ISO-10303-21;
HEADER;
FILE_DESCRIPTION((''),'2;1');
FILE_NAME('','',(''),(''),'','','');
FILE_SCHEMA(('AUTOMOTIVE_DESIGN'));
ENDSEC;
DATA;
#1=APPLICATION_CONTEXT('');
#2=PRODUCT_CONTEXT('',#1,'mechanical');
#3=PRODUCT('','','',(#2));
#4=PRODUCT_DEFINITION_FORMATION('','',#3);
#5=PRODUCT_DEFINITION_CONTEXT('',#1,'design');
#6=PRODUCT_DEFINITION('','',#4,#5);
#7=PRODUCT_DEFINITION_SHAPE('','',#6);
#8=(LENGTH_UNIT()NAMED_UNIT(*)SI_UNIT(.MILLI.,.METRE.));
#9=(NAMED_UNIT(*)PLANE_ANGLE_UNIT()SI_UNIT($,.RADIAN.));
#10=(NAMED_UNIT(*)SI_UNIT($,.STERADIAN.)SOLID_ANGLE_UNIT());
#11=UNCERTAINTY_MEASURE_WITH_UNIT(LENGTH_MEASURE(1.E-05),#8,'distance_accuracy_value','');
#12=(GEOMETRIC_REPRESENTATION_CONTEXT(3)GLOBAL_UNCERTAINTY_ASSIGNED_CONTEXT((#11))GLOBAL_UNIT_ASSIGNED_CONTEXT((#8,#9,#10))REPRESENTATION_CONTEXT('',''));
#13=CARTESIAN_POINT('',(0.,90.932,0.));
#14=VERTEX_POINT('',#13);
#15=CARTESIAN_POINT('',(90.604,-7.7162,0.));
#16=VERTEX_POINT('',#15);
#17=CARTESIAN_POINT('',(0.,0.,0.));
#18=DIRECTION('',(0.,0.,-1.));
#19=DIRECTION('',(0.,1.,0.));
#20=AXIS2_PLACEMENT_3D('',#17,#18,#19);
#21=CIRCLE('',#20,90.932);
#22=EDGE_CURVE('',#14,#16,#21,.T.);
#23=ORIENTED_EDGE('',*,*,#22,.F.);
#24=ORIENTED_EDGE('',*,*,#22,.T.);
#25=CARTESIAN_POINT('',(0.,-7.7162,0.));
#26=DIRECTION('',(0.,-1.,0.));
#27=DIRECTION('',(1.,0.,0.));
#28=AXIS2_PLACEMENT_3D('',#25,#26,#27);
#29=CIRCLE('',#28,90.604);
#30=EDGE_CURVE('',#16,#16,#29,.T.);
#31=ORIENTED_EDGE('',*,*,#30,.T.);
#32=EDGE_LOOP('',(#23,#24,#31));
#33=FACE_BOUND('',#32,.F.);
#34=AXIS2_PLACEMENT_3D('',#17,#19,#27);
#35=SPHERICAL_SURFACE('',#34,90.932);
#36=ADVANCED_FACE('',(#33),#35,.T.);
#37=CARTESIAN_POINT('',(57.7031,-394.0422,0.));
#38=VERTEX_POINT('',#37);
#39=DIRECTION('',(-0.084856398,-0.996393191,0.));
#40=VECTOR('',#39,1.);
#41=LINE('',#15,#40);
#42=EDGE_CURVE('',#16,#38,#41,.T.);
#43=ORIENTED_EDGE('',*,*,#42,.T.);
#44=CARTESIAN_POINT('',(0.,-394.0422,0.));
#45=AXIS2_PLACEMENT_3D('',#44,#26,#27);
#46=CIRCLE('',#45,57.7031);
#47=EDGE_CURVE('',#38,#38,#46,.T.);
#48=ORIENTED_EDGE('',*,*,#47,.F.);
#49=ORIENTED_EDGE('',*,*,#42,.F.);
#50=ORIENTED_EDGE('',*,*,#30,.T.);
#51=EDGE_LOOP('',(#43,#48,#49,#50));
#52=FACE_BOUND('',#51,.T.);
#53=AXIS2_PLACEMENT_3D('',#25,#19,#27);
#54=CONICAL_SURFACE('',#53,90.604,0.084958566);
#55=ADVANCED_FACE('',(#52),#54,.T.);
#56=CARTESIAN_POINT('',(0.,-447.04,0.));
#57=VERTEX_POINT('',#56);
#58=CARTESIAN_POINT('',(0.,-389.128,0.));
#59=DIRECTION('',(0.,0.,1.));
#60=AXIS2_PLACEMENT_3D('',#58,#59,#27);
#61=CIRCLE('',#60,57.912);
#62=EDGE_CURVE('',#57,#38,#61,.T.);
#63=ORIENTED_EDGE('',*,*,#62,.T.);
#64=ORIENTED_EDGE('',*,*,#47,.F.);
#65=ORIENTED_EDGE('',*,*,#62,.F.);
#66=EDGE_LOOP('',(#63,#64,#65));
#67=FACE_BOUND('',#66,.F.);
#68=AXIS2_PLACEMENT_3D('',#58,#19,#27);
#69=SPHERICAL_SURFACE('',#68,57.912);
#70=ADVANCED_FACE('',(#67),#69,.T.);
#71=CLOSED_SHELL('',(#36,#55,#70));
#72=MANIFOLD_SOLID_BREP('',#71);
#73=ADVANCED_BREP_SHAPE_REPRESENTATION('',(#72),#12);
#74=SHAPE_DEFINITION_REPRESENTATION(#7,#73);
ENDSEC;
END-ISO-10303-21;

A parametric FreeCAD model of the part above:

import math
import FreeCAD as App
import Part
import Sketcher
Q = App.Units.Quantity

doc = App.newDocument("Part")
params = doc.addObject("Spreadsheet::Sheet", "Params")
for row, (alias, value) in enumerate([
    ("sketch1_radius", "3.58 in"),
    ("sketch1_radius2", "2.28 in"),
    ("revolution_angle", "360 deg"),
], start=1):
    params.set(f"A{row}", alias)
    params.set(f"B{row}", "=" + value)
    params.setAlias(f"B{row}", alias)

body = doc.addObject("PartDesign::Body", "Body")

# Sketch on XY plane
sketch1 = doc.addObject("Sketcher::SketchObject", "Sketch")
body.addObject(sketch1)
sketch1.AttachmentSupport = (doc.XY_Plane, [""])
sketch1.MapMode = "FlatFace"
sketch1.addGeometry([
    Part.ArcOfCircle(Part.Circle(App.Vector(0, 0, 0), App.Vector(0, 0, 1), 91), math.radians(-5), math.radians(90)),
    Part.LineSegment(App.Vector(0, 91, 0), App.Vector(0, -447, 0)),
    Part.ArcOfCircle(Part.Circle(App.Vector(0, -389, 0), App.Vector(0, 0, 1), 58), math.radians(-90), math.radians(-5)),
    Part.LineSegment(App.Vector(58, -394, 0), App.Vector(91, -8, 0)),
], False)
sketch1.addConstraint([
    Sketcher.Constraint("Coincident", 0, 2, 1, 1),
    Sketcher.Constraint("Coincident", 1, 2, 2, 1),
    Sketcher.Constraint("Tangent", 2, 2, 3, 1),
    Sketcher.Constraint("Tangent", 3, 2, 0, 1),
    Sketcher.Constraint("Vertical", 1),
    Sketcher.Constraint("Coincident", 0, 3, -1, 1),
    Sketcher.Constraint("PointOnObject", 2, 3, -2),
    Sketcher.Constraint("PointOnObject", 0, 2, -2),
    Sketcher.Constraint("Radius", 0, Q("3.58 in")),
    Sketcher.Constraint("Radius", 2, Q("2.28 in")),
    Sketcher.Constraint("DistanceY", 2, 3, -1, 1, Q("15.32 in")),
])
sketch1.setExpression("Constraints[8]", "Params.sketch1_radius")
sketch1.setExpression("Constraints[9]", "Params.sketch1_radius2")
revolution = doc.addObject("PartDesign::Revolution", "Revolution")
body.addObject(revolution)
revolution.Profile = sketch1
revolution.ReferenceAxis = (sketch1, ["V_Axis"])
revolution.setExpression("Angle", "Params.revolution_angle")

doc.recompute()
